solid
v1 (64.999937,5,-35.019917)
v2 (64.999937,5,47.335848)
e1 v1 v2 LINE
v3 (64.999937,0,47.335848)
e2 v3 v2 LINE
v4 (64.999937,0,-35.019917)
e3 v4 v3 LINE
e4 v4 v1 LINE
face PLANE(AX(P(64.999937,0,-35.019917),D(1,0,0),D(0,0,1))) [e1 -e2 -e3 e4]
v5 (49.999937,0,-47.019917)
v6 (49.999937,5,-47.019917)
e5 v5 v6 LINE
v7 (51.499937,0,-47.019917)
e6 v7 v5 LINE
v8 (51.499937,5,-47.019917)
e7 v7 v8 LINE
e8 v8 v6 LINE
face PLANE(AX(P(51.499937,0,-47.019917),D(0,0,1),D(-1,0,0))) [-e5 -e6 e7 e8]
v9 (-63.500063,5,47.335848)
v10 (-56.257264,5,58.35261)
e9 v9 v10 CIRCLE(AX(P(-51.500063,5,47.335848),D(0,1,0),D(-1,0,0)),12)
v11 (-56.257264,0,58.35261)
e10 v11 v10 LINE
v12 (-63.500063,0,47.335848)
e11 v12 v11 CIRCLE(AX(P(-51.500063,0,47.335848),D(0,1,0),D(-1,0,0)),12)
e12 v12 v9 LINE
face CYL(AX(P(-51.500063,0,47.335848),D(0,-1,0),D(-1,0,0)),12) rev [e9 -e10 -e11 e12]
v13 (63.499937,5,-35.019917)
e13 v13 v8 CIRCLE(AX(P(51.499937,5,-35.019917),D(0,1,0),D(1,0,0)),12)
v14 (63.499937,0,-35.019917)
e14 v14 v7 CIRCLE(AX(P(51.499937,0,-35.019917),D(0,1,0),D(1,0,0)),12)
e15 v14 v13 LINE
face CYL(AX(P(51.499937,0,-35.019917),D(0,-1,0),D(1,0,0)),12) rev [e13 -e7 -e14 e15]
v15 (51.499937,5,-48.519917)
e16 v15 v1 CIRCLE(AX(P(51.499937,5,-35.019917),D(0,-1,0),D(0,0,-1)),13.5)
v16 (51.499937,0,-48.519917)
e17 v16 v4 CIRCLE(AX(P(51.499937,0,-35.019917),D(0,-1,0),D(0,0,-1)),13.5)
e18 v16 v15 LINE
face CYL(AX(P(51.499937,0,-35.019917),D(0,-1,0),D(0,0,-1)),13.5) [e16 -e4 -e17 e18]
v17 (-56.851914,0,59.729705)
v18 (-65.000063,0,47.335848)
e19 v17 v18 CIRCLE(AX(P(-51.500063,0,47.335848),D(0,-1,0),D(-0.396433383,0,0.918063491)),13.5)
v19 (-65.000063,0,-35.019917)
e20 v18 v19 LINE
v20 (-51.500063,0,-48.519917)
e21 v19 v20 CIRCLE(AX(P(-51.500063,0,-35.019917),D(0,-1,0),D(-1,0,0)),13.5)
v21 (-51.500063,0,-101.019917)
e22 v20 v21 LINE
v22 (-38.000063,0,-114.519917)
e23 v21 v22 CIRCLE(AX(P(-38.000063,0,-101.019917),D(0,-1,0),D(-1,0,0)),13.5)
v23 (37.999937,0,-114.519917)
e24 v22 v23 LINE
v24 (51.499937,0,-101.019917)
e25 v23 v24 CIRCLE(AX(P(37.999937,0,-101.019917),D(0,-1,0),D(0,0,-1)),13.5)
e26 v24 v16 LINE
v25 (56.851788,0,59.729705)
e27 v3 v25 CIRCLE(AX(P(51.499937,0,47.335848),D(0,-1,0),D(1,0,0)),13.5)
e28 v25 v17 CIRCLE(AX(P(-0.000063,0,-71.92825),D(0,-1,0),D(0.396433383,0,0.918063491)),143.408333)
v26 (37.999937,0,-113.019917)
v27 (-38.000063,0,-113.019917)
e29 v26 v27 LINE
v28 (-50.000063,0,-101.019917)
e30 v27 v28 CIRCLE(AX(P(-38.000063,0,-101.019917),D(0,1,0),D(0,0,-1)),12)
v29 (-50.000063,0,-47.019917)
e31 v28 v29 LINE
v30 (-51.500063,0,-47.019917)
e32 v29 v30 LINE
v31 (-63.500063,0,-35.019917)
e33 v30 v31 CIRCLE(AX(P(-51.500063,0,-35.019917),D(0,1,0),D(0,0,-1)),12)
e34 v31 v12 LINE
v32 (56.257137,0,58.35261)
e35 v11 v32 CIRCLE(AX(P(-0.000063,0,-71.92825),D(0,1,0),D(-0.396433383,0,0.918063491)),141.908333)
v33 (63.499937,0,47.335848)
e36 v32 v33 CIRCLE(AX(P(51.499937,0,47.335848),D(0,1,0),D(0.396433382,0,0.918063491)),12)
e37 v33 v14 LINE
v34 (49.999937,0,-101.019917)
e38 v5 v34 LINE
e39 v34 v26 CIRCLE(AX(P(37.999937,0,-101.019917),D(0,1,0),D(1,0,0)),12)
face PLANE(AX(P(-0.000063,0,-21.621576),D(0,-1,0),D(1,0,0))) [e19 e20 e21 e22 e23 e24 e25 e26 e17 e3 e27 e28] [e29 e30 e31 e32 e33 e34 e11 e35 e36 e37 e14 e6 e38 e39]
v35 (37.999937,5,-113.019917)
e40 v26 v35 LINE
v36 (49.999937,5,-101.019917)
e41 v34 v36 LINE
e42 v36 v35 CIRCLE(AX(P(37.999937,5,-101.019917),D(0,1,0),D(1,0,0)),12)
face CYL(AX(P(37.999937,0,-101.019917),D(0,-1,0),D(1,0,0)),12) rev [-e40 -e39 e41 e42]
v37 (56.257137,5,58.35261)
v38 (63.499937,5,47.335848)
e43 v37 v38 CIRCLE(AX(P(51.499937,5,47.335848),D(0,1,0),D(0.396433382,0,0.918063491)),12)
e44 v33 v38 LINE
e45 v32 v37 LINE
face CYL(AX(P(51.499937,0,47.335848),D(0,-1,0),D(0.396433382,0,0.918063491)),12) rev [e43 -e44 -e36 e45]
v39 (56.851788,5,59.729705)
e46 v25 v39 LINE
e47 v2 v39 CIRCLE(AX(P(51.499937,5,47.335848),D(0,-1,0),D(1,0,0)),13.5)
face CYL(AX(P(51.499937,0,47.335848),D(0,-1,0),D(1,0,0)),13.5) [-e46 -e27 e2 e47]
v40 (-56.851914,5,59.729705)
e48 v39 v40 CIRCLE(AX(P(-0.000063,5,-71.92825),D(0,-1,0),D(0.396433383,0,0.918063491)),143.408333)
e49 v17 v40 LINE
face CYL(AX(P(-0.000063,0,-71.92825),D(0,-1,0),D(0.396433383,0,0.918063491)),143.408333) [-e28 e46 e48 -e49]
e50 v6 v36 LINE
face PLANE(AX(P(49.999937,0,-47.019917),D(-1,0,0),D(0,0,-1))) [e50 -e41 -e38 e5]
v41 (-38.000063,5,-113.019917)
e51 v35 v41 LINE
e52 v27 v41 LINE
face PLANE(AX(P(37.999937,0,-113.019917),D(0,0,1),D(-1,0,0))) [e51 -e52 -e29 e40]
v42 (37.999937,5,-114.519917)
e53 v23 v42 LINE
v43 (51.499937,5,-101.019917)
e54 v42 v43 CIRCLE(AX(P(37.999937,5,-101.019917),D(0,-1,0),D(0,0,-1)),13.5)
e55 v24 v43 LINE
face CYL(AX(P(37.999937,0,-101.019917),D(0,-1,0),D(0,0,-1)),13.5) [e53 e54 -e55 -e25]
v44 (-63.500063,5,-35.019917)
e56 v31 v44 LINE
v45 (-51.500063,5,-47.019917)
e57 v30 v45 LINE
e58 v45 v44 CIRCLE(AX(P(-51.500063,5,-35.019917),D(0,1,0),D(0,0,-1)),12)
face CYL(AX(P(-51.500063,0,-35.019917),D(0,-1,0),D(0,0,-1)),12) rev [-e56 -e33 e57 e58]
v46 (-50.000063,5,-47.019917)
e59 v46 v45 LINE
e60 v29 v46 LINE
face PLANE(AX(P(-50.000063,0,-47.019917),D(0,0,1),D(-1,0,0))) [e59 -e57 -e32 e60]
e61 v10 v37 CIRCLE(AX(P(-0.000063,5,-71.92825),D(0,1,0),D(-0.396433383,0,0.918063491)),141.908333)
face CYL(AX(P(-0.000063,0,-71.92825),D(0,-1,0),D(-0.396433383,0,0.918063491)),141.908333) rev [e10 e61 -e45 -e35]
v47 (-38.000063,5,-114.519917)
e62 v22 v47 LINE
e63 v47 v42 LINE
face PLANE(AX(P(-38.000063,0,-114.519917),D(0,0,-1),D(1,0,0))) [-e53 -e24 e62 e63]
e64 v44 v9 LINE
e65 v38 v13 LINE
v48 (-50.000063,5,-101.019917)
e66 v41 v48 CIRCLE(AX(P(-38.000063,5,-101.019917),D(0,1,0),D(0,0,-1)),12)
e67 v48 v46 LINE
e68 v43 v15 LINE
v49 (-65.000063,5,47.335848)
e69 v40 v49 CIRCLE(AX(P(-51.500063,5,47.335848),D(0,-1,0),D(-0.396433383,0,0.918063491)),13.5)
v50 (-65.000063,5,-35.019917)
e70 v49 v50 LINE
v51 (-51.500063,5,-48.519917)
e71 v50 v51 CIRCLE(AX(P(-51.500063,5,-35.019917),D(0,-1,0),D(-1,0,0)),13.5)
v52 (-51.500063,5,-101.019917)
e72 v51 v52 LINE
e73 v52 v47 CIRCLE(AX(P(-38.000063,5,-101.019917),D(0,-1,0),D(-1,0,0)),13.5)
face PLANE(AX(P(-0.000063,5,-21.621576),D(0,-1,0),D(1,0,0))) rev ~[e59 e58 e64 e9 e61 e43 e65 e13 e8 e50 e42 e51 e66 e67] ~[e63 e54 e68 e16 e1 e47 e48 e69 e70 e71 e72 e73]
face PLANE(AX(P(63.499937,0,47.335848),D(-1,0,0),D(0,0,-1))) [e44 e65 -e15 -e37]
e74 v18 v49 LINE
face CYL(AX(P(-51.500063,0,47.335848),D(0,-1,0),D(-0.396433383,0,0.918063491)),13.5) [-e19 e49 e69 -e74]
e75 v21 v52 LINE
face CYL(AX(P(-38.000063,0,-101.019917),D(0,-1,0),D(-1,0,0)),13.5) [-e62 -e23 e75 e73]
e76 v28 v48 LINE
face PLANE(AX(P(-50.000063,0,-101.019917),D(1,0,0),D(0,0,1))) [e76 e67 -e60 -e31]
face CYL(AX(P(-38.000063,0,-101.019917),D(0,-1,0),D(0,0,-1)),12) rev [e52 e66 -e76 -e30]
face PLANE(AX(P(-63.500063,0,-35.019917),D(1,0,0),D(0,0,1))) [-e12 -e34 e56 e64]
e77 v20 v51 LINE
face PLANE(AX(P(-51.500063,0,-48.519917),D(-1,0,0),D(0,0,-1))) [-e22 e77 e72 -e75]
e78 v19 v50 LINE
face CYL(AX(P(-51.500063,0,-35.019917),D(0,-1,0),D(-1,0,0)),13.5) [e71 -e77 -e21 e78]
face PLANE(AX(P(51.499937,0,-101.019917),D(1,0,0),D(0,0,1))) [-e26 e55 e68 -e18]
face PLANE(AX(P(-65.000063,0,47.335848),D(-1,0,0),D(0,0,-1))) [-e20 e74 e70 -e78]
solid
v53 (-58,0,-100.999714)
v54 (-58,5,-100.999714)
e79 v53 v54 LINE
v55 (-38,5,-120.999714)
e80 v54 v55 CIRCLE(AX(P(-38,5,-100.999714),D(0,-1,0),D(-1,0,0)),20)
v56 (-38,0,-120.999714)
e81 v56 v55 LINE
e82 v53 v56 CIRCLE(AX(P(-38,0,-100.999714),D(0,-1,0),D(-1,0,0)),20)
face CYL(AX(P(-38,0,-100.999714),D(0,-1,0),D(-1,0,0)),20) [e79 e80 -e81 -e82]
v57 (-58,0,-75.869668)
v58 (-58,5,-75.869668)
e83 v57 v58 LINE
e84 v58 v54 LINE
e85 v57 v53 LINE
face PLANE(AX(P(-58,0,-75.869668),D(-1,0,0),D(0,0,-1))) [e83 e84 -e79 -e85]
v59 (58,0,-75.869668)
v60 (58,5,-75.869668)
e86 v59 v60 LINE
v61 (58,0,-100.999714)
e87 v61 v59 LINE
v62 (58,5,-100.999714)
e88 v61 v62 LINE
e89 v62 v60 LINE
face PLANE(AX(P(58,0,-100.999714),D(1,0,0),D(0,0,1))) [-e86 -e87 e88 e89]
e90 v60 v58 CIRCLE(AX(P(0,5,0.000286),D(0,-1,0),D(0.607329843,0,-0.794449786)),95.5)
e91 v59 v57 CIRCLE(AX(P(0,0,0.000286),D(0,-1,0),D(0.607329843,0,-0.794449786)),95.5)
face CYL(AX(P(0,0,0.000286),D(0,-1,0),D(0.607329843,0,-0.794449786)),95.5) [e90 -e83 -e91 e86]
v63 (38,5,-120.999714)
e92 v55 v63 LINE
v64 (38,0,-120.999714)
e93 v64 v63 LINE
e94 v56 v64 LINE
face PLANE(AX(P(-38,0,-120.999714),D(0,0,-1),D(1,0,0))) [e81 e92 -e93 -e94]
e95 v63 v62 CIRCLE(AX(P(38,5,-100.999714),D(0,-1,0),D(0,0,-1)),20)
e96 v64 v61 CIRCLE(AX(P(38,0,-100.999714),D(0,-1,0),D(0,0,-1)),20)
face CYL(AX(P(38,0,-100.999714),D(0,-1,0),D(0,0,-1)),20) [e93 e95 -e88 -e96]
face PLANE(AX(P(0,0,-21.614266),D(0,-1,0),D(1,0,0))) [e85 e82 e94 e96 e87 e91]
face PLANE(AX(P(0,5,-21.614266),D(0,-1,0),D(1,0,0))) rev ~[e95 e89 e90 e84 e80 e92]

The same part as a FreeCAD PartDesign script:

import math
import FreeCAD as App
import Part
import Sketcher

V = App.Vector

doc = App.newDocument("Part")
body = doc.addObject("PartDesign::Body", "Body")

sketch1 = body.newObject("Sketcher::SketchObject", "Sketch")
sketch1.AttachmentSupport = (doc.getObject("XZ_Plane"), [""])
sketch1.MapMode = "FlatFace"
sketch1.addGeometry(Part.LineSegment(V(58, -100.999714, 0), V(58, -75.869668, 0)), False)
sketch1.addGeometry(Part.ArcOfCircle(Part.Circle(V(0, 0.000286, 0), V(0, 0, 1), 95.5), math.radians(-52.603317), math.radians(232.603317)), False)
sketch1.addGeometry(Part.LineSegment(V(-58, -75.869668, 0), V(-58, -100.999714, 0)), False)
sketch1.addGeometry(Part.ArcOfCircle(Part.Circle(V(-38, -100.999714, 0), V(0, 0, 1), 20), math.radians(180), math.radians(270)), False)
sketch1.addGeometry(Part.LineSegment(V(-38, -120.999714, 0), V(38, -120.999714, 0)), False)
sketch1.addGeometry(Part.ArcOfCircle(Part.Circle(V(38, -100.999714, 0), V(0, 0, 1), 20), math.radians(-90), math.radians(0)), False)
sketch1.addConstraint(Sketcher.Constraint("Coincident", 0, 2, 1, 1))
sketch1.addConstraint(Sketcher.Constraint("Coincident", 1, 2, 2, 1))
sketch1.addConstraint(Sketcher.Constraint("Tangent", 2, 2, 3, 1))
sketch1.addConstraint(Sketcher.Constraint("Tangent", 3, 2, 4, 1))
sketch1.addConstraint(Sketcher.Constraint("Tangent", 4, 2, 5, 1))
sketch1.addConstraint(Sketcher.Constraint("Tangent", 5, 2, 0, 1))
sketch1.addConstraint(Sketcher.Constraint("Vertical", 0))
sketch1.addConstraint(Sketcher.Constraint("Vertical", 2))
sketch1.addConstraint(Sketcher.Constraint("Horizontal", 4))
sketch1.addConstraint(Sketcher.Constraint("Equal", 3, 5))
sketch1.addConstraint(Sketcher.Constraint("Symmetric", 0, 2, 1, 2, -2))
sketch1.addConstraint(Sketcher.Constraint("Radius", 3, 20.0))
sketch1.addConstraint(Sketcher.Constraint("Radius", 1, 95.5))
sketch1.addConstraint(Sketcher.Constraint("DistanceX", 4, 1, 4, 2, 76.0))
sketch1.addConstraint(Sketcher.Constraint("DistanceY", 3, 3, 1, 3, 101.0))
sketch1.addConstraint(Sketcher.Constraint("DistanceY", 0, 2, -1, 1, 75.869668))
pad1 = body.newObject("PartDesign::Pad", "Pad")
pad1.Profile = sketch1
pad1.Length = 5
pad1.Reversed = True
body2 = doc.addObject("PartDesign::Body", "Body001")

sketch2 = body2.newObject("Sketcher::SketchObject", "Sketch001")
sketch2.AttachmentSupport = (doc.getObject("XZ_Plane001"), [""])
sketch2.MapMode = "FlatFace"
sketch2.addGeometry(Part.LineSegment(V(64.999937, -35.019917, 0), V(64.999937, 47.335848, 0)), False)
sketch2.addGeometry(Part.ArcOfCircle(Part.Circle(V(51.499937, 47.335848, 0), V(0, 0, 1), 13.5), math.radians(0), math.radians(66.6446)), False)
sketch2.addGeometry(Part.ArcOfCircle(Part.Circle(V(-0.000063, -71.92825, 0), V(0, 0, 1), 143.408333), math.radians(66.6446), math.radians(113.3554)), False)
sketch2.addGeometry(Part.ArcOfCircle(Part.Circle(V(-51.500063, 47.335848, 0), V(0, 0, 1), 13.5), math.radians(113.3554), math.radians(180)), False)
sketch2.addGeometry(Part.LineSegment(V(-65.000063, 47.335848, 0), V(-65.000063, -35.019917, 0)), False)
sketch2.addGeometry(Part.ArcOfCircle(Part.Circle(V(-51.500063, -35.019917, 0), V(0, 0, 1), 13.5), math.radians(180), math.radians(270)), False)
sketch2.addGeometry(Part.LineSegment(V(-51.500063, -48.519917, 0), V(-51.500063, -101.019917, 0)), False)
sketch2.addGeometry(Part.ArcOfCircle(Part.Circle(V(-38.000063, -101.019917, 0), V(0, 0, 1), 13.5), math.radians(180), math.radians(270)), False)
sketch2.addGeometry(Part.LineSegment(V(-38.000063, -114.519917, 0), V(37.999937, -114.519917, 0)), False)
sketch2.addGeometry(Part.ArcOfCircle(Part.Circle(V(37.999937, -101.019917, 0), V(0, 0, 1), 13.5), math.radians(-90), math.radians(0)), False)
sketch2.addGeometry(Part.LineSegment(V(51.499937, -101.019917, 0), V(51.499937, -48.519917, 0)), False)
sketch2.addGeometry(Part.ArcOfCircle(Part.Circle(V(51.499937, -35.019917, 0), V(0, 0, 1), 13.5), math.radians(-90), math.radians(0)), False)
sketch2.addGeometry(Part.ArcOfCircle(Part.Circle(V(37.999937, -101.019917, 0), V(0, 0, 1), 12), math.radians(-90), math.radians(0)), False)
sketch2.addGeometry(Part.LineSegment(V(37.999937, -113.019917, 0), V(-38.000063, -113.019917, 0)), False)
sketch2.addGeometry(Part.ArcOfCircle(Part.Circle(V(-38.000063, -101.019917, 0), V(0, 0, 1), 12), math.radians(180), math.radians(270)), False)
sketch2.addGeometry(Part.LineSegment(V(-50.000063, -101.019917, 0), V(-50.000063, -47.019917, 0)), False)
sketch2.addGeometry(Part.LineSegment(V(-50.000063, -47.019917, 0), V(-51.500063, -47.019917, 0)), False)
sketch2.addGeometry(Part.ArcOfCircle(Part.Circle(V(-51.500063, -35.019917, 0), V(0, 0, 1), 12), math.radians(180), math.radians(270)), False)
sketch2.addGeometry(Part.LineSegment(V(-63.500063, -35.019917, 0), V(-63.500063, 47.335848, 0)), False)
sketch2.addGeometry(Part.ArcOfCircle(Part.Circle(V(-51.500063, 47.335848, 0), V(0, 0, 1), 12), math.radians(113.3554), math.radians(180)), False)
sketch2.addGeometry(Part.ArcOfCircle(Part.Circle(V(-0.000063, -71.92825, 0), V(0, 0, 1), 141.908333), math.radians(66.6446), math.radians(113.3554)), False)
sketch2.addGeometry(Part.ArcOfCircle(Part.Circle(V(51.499937, 47.335848, 0), V(0, 0, 1), 12), math.radians(0), math.radians(66.6446)), False)
sketch2.addGeometry(Part.LineSegment(V(63.499937, 47.335848, 0), V(63.499937, -35.019917, 0)), False)
sketch2.addGeometry(Part.ArcOfCircle(Part.Circle(V(51.499937, -35.019917, 0), V(0, 0, 1), 12), math.radians(-90), math.radians(0)), False)
sketch2.addGeometry(Part.LineSegment(V(51.499937, -47.019917, 0), V(49.999937, -47.019917, 0)), False)
sketch2.addGeometry(Part.LineSegment(V(49.999937, -47.019917, 0), V(49.999937, -101.019917, 0)), False)
sketch2.addConstraint(Sketcher.Constraint("Tangent", 0, 2, 1, 1))
sketch2.addConstraint(Sketcher.Constraint("Tangent", 1, 2, 2, 1))
sketch2.addConstraint(Sketcher.Constraint("Tangent", 2, 2, 3, 1))
sketch2.addConstraint(Sketcher.Constraint("Tangent", 3, 2, 4, 1))
sketch2.addConstraint(Sketcher.Constraint("Tangent", 4, 2, 5, 1))
sketch2.addConstraint(Sketcher.Constraint("Coincident", 5, 2, 6, 1))
sketch2.addConstraint(Sketcher.Constraint("Tangent", 6, 2, 7, 1))
sketch2.addConstraint(Sketcher.Constraint("Tangent", 7, 2, 8, 1))
sketch2.addConstraint(Sketcher.Constraint("Tangent", 8, 2, 9, 1))
sketch2.addConstraint(Sketcher.Constraint("Tangent", 9, 2, 10, 1))
sketch2.addConstraint(Sketcher.Constraint("Coincident", 10, 2, 11, 1))
sketch2.addConstraint(Sketcher.Constraint("Tangent", 11, 2, 0, 1))
sketch2.addConstraint(Sketcher.Constraint("Tangent", 12, 1, 13, 1))
sketch2.addConstraint(Sketcher.Constraint("Tangent", 13, 2, 14, 2))
sketch2.addConstraint(Sketcher.Constraint("Tangent", 14, 1, 15, 1))
sketch2.addConstraint(Sketcher.Constraint("Coincident", 15, 2, 16, 1))
sketch2.addConstraint(Sketcher.Constraint("Tangent", 16, 2, 17, 2))
sketch2.addConstraint(Sketcher.Constraint("Tangent", 17, 1, 18, 1))
sketch2.addConstraint(Sketcher.Constraint("Tangent", 18, 2, 19, 2))
sketch2.addConstraint(Sketcher.Constraint("Tangent", 19, 1, 20, 2))
sketch2.addConstraint(Sketcher.Constraint("Tangent", 20, 1, 21, 2))
sketch2.addConstraint(Sketcher.Constraint("Tangent", 21, 1, 22, 1))
sketch2.addConstraint(Sketcher.Constraint("Tangent", 22, 2, 23, 2))
sketch2.addConstraint(Sketcher.Constraint("Tangent", 23, 1, 24, 1))
sketch2.addConstraint(Sketcher.Constraint("Coincident", 24, 2, 25, 1))
sketch2.addConstraint(Sketcher.Constraint("Tangent", 25, 2, 12, 2))
sketch2.addConstraint(Sketcher.Constraint("Vertical", 0))
sketch2.addConstraint(Sketcher.Constraint("Vertical", 4))
sketch2.addConstraint(Sketcher.Constraint("Vertical", 6))
sketch2.addConstraint(Sketcher.Constraint("Horizontal", 8))
sketch2.addConstraint(Sketcher.Constraint("Vertical", 10))
sketch2.addConstraint(Sketcher.Constraint("Horizontal", 13))
sketch2.addConstraint(Sketcher.Constraint("Vertical", 15))
sketch2.addConstraint(Sketcher.Constraint("Horizontal", 16))
sketch2.addConstraint(Sketcher.Constraint("Vertical", 18))
sketch2.addConstraint(Sketcher.Constraint("Vertical", 22))
sketch2.addConstraint(Sketcher.Constraint("Horizontal", 24))
sketch2.addConstraint(Sketcher.Constraint("Vertical", 25))
sketch2.addConstraint(Sketcher.Constraint("Coincident", 12, 3, 9, 3))
sketch2.addConstraint(Sketcher.Constraint("Coincident", 14, 3, 7, 3))
sketch2.addConstraint(Sketcher.Constraint("Coincident", 17, 3, 5, 3))
sketch2.addConstraint(Sketcher.Constraint("Coincident", 19, 3, 3, 3))
sketch2.addConstraint(Sketcher.Constraint("Coincident", 20, 3, 2, 3))
sketch2.addConstraint(Sketcher.Constraint("Coincident", 21, 3, 1, 3))
sketch2.addConstraint(Sketcher.Constraint("Coincident", 23, 3, 11, 3))
sketch2.addConstraint(Sketcher.Constraint("Equal", 1, 3))
sketch2.addConstraint(Sketcher.Constraint("Equal", 3, 5))
sketch2.addConstraint(Sketcher.Constraint("Equal", 5, 7))
sketch2.addConstraint(Sketcher.Constraint("Equal", 7, 9))
sketch2.addConstraint(Sketcher.Constraint("Equal", 9, 11))
sketch2.addConstraint(Sketcher.Constraint("Equal", 14, 17))
sketch2.addConstraint(Sketcher.Constraint("Horizontal", 1, 3, 3, 3))
sketch2.addConstraint(Sketcher.Constraint("Horizontal", 5, 3, 11, 3))
sketch2.addConstraint(Sketcher.Constraint("Vertical", 19, 3, 5, 2))
sketch2.addConstraint(Sketcher.Constraint("Vertical", 23, 3, 9, 2))
sketch2.addConstraint(Sketcher.Constraint("Radius", 12, 12.0))
sketch2.addConstraint(Sketcher.Constraint("Radius", 1, 13.5))
sketch2.addConstraint(Sketcher.Constraint("DistanceX", 8, 1, 8, 2, 76.0))
sketch2.addConstraint(Sketcher.Constraint("DistanceY", 15, 1, 15, 2, 54.0))
sketch2.addConstraint(Sketcher.Constraint("Radius", 2, 143.408333))
sketch2.addConstraint(Sketcher.Constraint("DistanceY", 0, 1, 0, 2, 82.355765))
sketch2.addConstraint(Sketcher.Constraint("DistanceY", 2, 3, -1, 1, 71.92825))
sketch2.addConstraint(Sketcher.Constraint("DistanceX", -1, 1, 1, 3, 51.499937))
pad2 = body2.newObject("PartDesign::Pad", "Pad001")
pad2.Profile = sketch2
pad2.Length = 5
pad2.Reversed = True

doc.recompute()
